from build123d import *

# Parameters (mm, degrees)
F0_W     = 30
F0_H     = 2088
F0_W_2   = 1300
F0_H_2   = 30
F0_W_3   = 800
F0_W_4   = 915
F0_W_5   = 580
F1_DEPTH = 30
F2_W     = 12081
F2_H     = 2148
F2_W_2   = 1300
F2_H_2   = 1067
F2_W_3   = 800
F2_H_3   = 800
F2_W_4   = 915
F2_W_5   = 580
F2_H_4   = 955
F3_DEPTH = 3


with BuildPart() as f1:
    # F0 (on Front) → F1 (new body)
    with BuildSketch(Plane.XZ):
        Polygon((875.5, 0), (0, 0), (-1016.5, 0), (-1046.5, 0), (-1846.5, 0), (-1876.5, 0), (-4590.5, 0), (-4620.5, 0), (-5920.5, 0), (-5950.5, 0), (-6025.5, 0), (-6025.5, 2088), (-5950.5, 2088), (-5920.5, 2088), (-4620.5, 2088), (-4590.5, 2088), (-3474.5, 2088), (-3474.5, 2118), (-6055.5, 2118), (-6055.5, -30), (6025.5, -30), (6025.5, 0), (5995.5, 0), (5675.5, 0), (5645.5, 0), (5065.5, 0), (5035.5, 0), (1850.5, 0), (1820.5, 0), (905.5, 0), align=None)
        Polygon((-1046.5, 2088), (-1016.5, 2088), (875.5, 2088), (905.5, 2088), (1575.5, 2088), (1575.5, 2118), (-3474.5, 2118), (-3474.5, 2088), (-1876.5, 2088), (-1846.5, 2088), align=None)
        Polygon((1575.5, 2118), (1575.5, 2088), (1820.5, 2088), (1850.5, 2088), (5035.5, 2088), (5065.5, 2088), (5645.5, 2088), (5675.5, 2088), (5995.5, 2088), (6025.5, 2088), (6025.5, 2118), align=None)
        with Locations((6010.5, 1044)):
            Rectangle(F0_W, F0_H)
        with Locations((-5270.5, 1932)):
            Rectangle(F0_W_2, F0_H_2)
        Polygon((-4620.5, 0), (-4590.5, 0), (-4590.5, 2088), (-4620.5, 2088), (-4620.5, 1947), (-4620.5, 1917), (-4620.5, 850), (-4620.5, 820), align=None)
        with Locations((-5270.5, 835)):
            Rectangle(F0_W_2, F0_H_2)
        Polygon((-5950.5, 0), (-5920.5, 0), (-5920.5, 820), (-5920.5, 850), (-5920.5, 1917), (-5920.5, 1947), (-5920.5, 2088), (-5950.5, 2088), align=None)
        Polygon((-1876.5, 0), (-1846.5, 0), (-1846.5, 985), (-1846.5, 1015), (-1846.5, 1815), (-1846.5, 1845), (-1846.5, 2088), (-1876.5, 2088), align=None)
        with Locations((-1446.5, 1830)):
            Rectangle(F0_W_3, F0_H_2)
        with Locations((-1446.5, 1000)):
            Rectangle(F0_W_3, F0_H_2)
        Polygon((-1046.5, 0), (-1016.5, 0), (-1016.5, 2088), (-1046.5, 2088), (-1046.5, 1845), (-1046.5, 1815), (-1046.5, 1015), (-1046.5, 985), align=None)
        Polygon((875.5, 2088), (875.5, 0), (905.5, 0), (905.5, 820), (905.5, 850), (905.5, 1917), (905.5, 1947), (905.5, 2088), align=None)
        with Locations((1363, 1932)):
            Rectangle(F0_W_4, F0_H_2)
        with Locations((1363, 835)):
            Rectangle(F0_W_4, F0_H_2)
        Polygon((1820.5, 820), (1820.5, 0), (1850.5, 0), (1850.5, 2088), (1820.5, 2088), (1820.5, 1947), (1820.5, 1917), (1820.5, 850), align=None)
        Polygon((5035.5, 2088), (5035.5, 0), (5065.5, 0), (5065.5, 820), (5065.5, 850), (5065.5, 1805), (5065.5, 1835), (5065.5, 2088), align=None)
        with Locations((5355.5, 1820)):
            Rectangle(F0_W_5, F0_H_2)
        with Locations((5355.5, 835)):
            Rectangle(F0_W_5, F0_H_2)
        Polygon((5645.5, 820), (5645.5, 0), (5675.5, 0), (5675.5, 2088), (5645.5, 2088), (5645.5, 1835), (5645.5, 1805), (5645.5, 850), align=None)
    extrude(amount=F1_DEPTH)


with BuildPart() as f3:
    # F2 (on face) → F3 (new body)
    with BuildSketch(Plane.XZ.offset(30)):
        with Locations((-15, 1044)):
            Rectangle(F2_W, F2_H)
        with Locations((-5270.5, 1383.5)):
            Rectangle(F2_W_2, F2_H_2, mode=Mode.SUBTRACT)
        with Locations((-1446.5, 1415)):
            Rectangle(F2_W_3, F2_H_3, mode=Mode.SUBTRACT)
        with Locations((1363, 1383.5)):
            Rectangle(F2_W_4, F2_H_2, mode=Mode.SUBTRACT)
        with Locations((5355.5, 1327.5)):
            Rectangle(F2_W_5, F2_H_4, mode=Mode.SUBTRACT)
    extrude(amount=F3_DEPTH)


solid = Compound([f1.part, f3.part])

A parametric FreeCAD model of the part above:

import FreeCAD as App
import Part
import Sketcher

doc = App.newDocument("Part")
body = doc.addObject("PartDesign::Body", "Body")

sketch1 = doc.addObject("Sketcher::SketchObject", "Sketch")
body.addObject(sketch1)
sketch1.AttachmentSupport = (doc.XZ_Plane, [""])
sketch1.MapMode = "FlatFace"
sketch1.addGeometry([
    Part.LineSegment(App.Vector(6026, 2118, 0), App.Vector(-6056, 2118, 0)),
    Part.LineSegment(App.Vector(-6056, 2118, 0), App.Vector(-6056, -30, 0)),
    Part.LineSegment(App.Vector(-6056, -30, 0), App.Vector(6026, -30, 0)),
    Part.LineSegment(App.Vector(6026, -30, 0), App.Vector(6026, 2118, 0)),
    Part.LineSegment(App.Vector(-6026, 0, 0), App.Vector(-6026, 2088, 0)),
    Part.LineSegment(App.Vector(-6026, 2088, 0), App.Vector(-5950, 2088, 0)),
    Part.LineSegment(App.Vector(-5950, 2088, 0), App.Vector(-5950, 0, 0)),
    Part.LineSegment(App.Vector(-5950, 0, 0), App.Vector(-6026, 0, 0)),
    Part.LineSegment(App.Vector(-5920, 2088, 0), App.Vector(-4620, 2088, 0)),
    Part.LineSegment(App.Vector(-4620, 2088, 0), App.Vector(-4620, 1947, 0)),
    Part.LineSegment(App.Vector(-4620, 1947, 0), App.Vector(-5920, 1947, 0)),
    Part.LineSegment(App.Vector(-5920, 1947, 0), App.Vector(-5920, 2088, 0)),
    Part.LineSegment(App.Vector(-5920, 1917, 0), App.Vector(-4620, 1917, 0)),
    Part.LineSegment(App.Vector(-4620, 1917, 0), App.Vector(-4620, 850, 0)),
    Part.LineSegment(App.Vector(-4620, 850, 0), App.Vector(-5920, 850, 0)),
    Part.LineSegment(App.Vector(-5920, 850, 0), App.Vector(-5920, 1917, 0)),
    Part.LineSegment(App.Vector(-5920, 820, 0), App.Vector(-4620, 820, 0)),
    Part.LineSegment(App.Vector(-4620, 820, 0), App.Vector(-4620, 0, 0)),
    Part.LineSegment(App.Vector(-4620, 0, 0), App.Vector(-5920, 0, 0)),
    Part.LineSegment(App.Vector(-5920, 0, 0), App.Vector(-5920, 820, 0)),
    Part.LineSegment(App.Vector(-4590, 2088, 0), App.Vector(-1876, 2088, 0)),
    Part.LineSegment(App.Vector(-1876, 2088, 0), App.Vector(-1876, 0, 0)),
    Part.LineSegment(App.Vector(-1876, 0, 0), App.Vector(-4590, 0, 0)),
    Part.LineSegment(App.Vector(-4590, 0, 0), App.Vector(-4590, 2088, 0)),
    Part.LineSegment(App.Vector(-1846, 2088, 0), App.Vector(-1046, 2088, 0)),
    Part.LineSegment(App.Vector(-1046, 2088, 0), App.Vector(-1046, 1845, 0)),
    Part.LineSegment(App.Vector(-1046, 1845, 0), App.Vector(-1846, 1845, 0)),
    Part.LineSegment(App.Vector(-1846, 1845, 0), App.Vector(-1846, 2088, 0)),
    Part.LineSegment(App.Vector(-1016, 2088, 0), App.Vector(876, 2088, 0)),
    Part.LineSegment(App.Vector(876, 2088, 0), App.Vector(876, 0, 0)),
    Part.LineSegment(App.Vector(876, 0, 0), App.Vector(-1016, 0, 0)),
    Part.LineSegment(App.Vector(-1016, 0, 0), App.Vector(-1016, 2088, 0)),
    Part.LineSegment(App.Vector(906, 2088, 0), App.Vector(1820, 2088, 0)),
    Part.LineSegment(App.Vector(1820, 2088, 0), App.Vector(1820, 1947, 0)),
    Part.LineSegment(App.Vector(1820, 1947, 0), App.Vector(906, 1947, 0)),
    Part.LineSegment(App.Vector(906, 1947, 0), App.Vector(906, 2088, 0)),
    Part.LineSegment(App.Vector(1850, 2088, 0), App.Vector(5036, 2088, 0)),
    Part.LineSegment(App.Vector(5036, 2088, 0), App.Vector(5036, 0, 0)),
    Part.LineSegment(App.Vector(5036, 0, 0), App.Vector(1850, 0, 0)),
    Part.LineSegment(App.Vector(1850, 0, 0), App.Vector(1850, 2088, 0)),
    Part.LineSegment(App.Vector(5066, 2088, 0), App.Vector(5646, 2088, 0)),
    Part.LineSegment(App.Vector(5646, 2088, 0), App.Vector(5646, 1835, 0)),
    Part.LineSegment(App.Vector(5646, 1835, 0), App.Vector(5066, 1835, 0)),
    Part.LineSegment(App.Vector(5066, 1835, 0), App.Vector(5066, 2088, 0)),
    Part.LineSegment(App.Vector(5676, 2088, 0), App.Vector(5996, 2088, 0)),
    Part.LineSegment(App.Vector(5996, 2088, 0), App.Vector(5996, 0, 0)),
    Part.LineSegment(App.Vector(5996, 0, 0), App.Vector(5676, 0, 0)),
    Part.LineSegment(App.Vector(5676, 0, 0), App.Vector(5676, 2088, 0)),
    Part.LineSegment(App.Vector(5646, 0, 0), App.Vector(5066, 0, 0)),
    Part.LineSegment(App.Vector(5066, 0, 0), App.Vector(5066, 820, 0)),
    Part.LineSegment(App.Vector(5066, 820, 0), App.Vector(5646, 820, 0)),
    Part.LineSegment(App.Vector(5646, 820, 0), App.Vector(5646, 0, 0)),
    Part.LineSegment(App.Vector(5646, 850, 0), App.Vector(5066, 850, 0)),
    Part.LineSegment(App.Vector(5066, 850, 0), App.Vector(5066, 1805, 0)),
    Part.LineSegment(App.Vector(5066, 1805, 0), App.Vector(5646, 1805, 0)),
    Part.LineSegment(App.Vector(5646, 1805, 0), App.Vector(5646, 850, 0)),
    Part.LineSegment(App.Vector(1820, 0, 0), App.Vector(906, 0, 0)),
    Part.LineSegment(App.Vector(906, 0, 0), App.Vector(906, 820, 0)),
    Part.LineSegment(App.Vector(906, 820, 0), App.Vector(1820, 820, 0)),
    Part.LineSegment(App.Vector(1820, 820, 0), App.Vector(1820, 0, 0)),
    Part.LineSegment(App.Vector(1820, 850, 0), App.Vector(906, 850, 0)),
    Part.LineSegment(App.Vector(906, 850, 0), App.Vector(906, 1917, 0)),
    Part.LineSegment(App.Vector(906, 1917, 0), App.Vector(1820, 1917, 0)),
    Part.LineSegment(App.Vector(1820, 1917, 0), App.Vector(1820, 850, 0)),
    Part.LineSegment(App.Vector(-1046, 0, 0), App.Vector(-1846, 0, 0)),
    Part.LineSegment(App.Vector(-1846, 0, 0), App.Vector(-1846, 985, 0)),
    Part.LineSegment(App.Vector(-1846, 985, 0), App.Vector(-1046, 985, 0)),
    Part.LineSegment(App.Vector(-1046, 985, 0), App.Vector(-1046, 0, 0)),
    Part.LineSegment(App.Vector(-1046, 1015, 0), App.Vector(-1846, 1015, 0)),
    Part.LineSegment(App.Vector(-1846, 1015, 0), App.Vector(-1846, 1815, 0)),
    Part.LineSegment(App.Vector(-1846, 1815, 0), App.Vector(-1046, 1815, 0)),
    Part.LineSegment(App.Vector(-1046, 1815, 0), App.Vector(-1046, 1015, 0)),
], False)
sketch1.addConstraint([
    Sketcher.Constraint("Coincident", 0, 2, 1, 1),
    Sketcher.Constraint("Coincident", 1, 2, 2, 1),
    Sketcher.Constraint("Coincident", 2, 2, 3, 1),
    Sketcher.Constraint("Coincident", 3, 2, 0, 1),
    Sketcher.Constraint("Coincident", 4, 2, 5, 1),
    Sketcher.Constraint("Coincident", 5, 2, 6, 1),
    Sketcher.Constraint("Coincident", 6, 2, 7, 1),
    Sketcher.Constraint("Coincident", 7, 2, 4, 1),
    Sketcher.Constraint("Coincident", 8, 2, 9, 1),
    Sketcher.Constraint("Coincident", 9, 2, 10, 1),
    Sketcher.Constraint("Coincident", 10, 2, 11, 1),
    Sketcher.Constraint("Coincident", 11, 2, 8, 1),
    Sketcher.Constraint("Coincident", 12, 2, 13, 1),
    Sketcher.Constraint("Coincident", 13, 2, 14, 1),
    Sketcher.Constraint("Coincident", 14, 2, 15, 1),
    Sketcher.Constraint("Coincident", 15, 2, 12, 1),
    Sketcher.Constraint("Coincident", 16, 2, 17, 1),
    Sketcher.Constraint("Coincident", 17, 2, 18, 1),
    Sketcher.Constraint("Coincident", 18, 2, 19, 1),
    Sketcher.Constraint("Coincident", 19, 2, 16, 1),
    Sketcher.Constraint("Coincident", 20, 2, 21, 1),
    Sketcher.Constraint("Coincident", 21, 2, 22, 1),
    Sketcher.Constraint("Coincident", 22, 2, 23, 1),
    Sketcher.Constraint("Coincident", 23, 2, 20, 1),
    Sketcher.Constraint("Coincident", 24, 2, 25, 1),
    Sketcher.Constraint("Coincident", 25, 2, 26, 1),
    Sketcher.Constraint("Coincident", 26, 2, 27, 1),
    Sketcher.Constraint("Coincident", 27, 2, 24, 1),
    Sketcher.Constraint("Coincident", 28, 2, 29, 1),
    Sketcher.Constraint("Coincident", 29, 2, 30, 1),
    Sketcher.Constraint("Coincident", 30, 2, 31, 1),
    Sketcher.Constraint("Coincident", 31, 2, 28, 1),
    Sketcher.Constraint("Coincident", 32, 2, 33, 1),
    Sketcher.Constraint("Coincident", 33, 2, 34, 1),
    Sketcher.Constraint("Coincident", 34, 2, 35, 1),
    Sketcher.Constraint("Coincident", 35, 2, 32, 1),
    Sketcher.Constraint("Coincident", 36, 2, 37, 1),
    Sketcher.Constraint("Coincident", 37, 2, 38, 1),
    Sketcher.Constraint("Coincident", 38, 2, 39, 1),
    Sketcher.Constraint("Coincident", 39, 2, 36, 1),
    Sketcher.Constraint("Coincident", 40, 2, 41, 1),
    Sketcher.Constraint("Coincident", 41, 2, 42, 1),
    Sketcher.Constraint("Coincident", 42, 2, 43, 1),
    Sketcher.Constraint("Coincident", 43, 2, 40, 1),
    Sketcher.Constraint("Coincident", 44, 2, 45, 1),
    Sketcher.Constraint("Coincident", 45, 2, 46, 1),
    Sketcher.Constraint("Coincident", 46, 2, 47, 1),
    Sketcher.Constraint("Coincident", 47, 2, 44, 1),
    Sketcher.Constraint("Coincident", 48, 2, 49, 1),
    Sketcher.Constraint("Coincident", 49, 2, 50, 1),
    Sketcher.Constraint("Coincident", 50, 2, 51, 1),
    Sketcher.Constraint("Coincident", 51, 2, 48, 1),
    Sketcher.Constraint("Coincident", 52, 2, 53, 1),
    Sketcher.Constraint("Coincident", 53, 2, 54, 1),
    Sketcher.Constraint("Coincident", 54, 2, 55, 1),
    Sketcher.Constraint("Coincident", 55, 2, 52, 1),
    Sketcher.Constraint("Coincident", 56, 2, 57, 1),
    Sketcher.Constraint("Coincident", 57, 2, 58, 1),
    Sketcher.Constraint("Coincident", 58, 2, 59, 1),
    Sketcher.Constraint("Coincident", 59, 2, 56, 1),
    Sketcher.Constraint("Coincident", 60, 2, 61, 1),
    Sketcher.Constraint("Coincident", 61, 2, 62, 1),
    Sketcher.Constraint("Coincident", 62, 2, 63, 1),
    Sketcher.Constraint("Coincident", 63, 2, 60, 1),
    Sketcher.Constraint("Coincident", 64, 2, 65, 1),
    Sketcher.Constraint("Coincident", 65, 2, 66, 1),
    Sketcher.Constraint("Coincident", 66, 2, 67, 1),
    Sketcher.Constraint("Coincident", 67, 2, 64, 1),
    Sketcher.Constraint("Coincident", 68, 2, 69, 1),
    Sketcher.Constraint("Coincident", 69, 2, 70, 1),
    Sketcher.Constraint("Coincident", 70, 2, 71, 1),
    Sketcher.Constraint("Coincident", 71, 2, 68, 1),
    Sketcher.Constraint("Horizontal", 0),
    Sketcher.Constraint("Vertical", 1),
    Sketcher.Constraint("Horizontal", 2),
    Sketcher.Constraint("Vertical", 3),
    Sketcher.Constraint("Vertical", 4),
    Sketcher.Constraint("Horizontal", 5),
    Sketcher.Constraint("Vertical", 6),
    Sketcher.Constraint("Horizontal", 7),
    Sketcher.Constraint("Horizontal", 8),
    Sketcher.Constraint("Vertical", 9),
    Sketcher.Constraint("Horizontal", 10),
    Sketcher.Constraint("Vertical", 11),
    Sketcher.Constraint("Horizontal", 12),
    Sketcher.Constraint("Vertical", 13),
    Sketcher.Constraint("Horizontal", 14),
    Sketcher.Constraint("Vertical", 15),
    Sketcher.Constraint("Horizontal", 16),
    Sketcher.Constraint("Vertical", 17),
    Sketcher.Constraint("Horizontal", 18),
    Sketcher.Constraint("Vertical", 19),
    Sketcher.Constraint("Horizontal", 20),
    Sketcher.Constraint("Vertical", 21),
    Sketcher.Constraint("Horizontal", 22),
    Sketcher.Constraint("Vertical", 23),
    Sketcher.Constraint("Horizontal", 24),
    Sketcher.Constraint("Vertical", 25),
    Sketcher.Constraint("Horizontal", 26),
    Sketcher.Constraint("Vertical", 27),
    Sketcher.Constraint("Horizontal", 28),
    Sketcher.Constraint("Vertical", 29),
    Sketcher.Constraint("Horizontal", 30),
    Sketcher.Constraint("Vertical", 31),
    Sketcher.Constraint("Horizontal", 32),
    Sketcher.Constraint("Vertical", 33),
    Sketcher.Constraint("Horizontal", 34),
    Sketcher.Constraint("Vertical", 35),
    Sketcher.Constraint("Horizontal", 36),
    Sketcher.Constraint("Vertical", 37),
    Sketcher.Constraint("Horizontal", 38),
    Sketcher.Constraint("Vertical", 39),
    Sketcher.Constraint("Horizontal", 40),
    Sketcher.Constraint("Vertical", 41),
    Sketcher.Constraint("Horizontal", 42),
    Sketcher.Constraint("Vertical", 43),
    Sketcher.Constraint("Horizontal", 44),
    Sketcher.Constraint("Vertical", 45),
    Sketcher.Constraint("Horizontal", 46),
    Sketcher.Constraint("Vertical", 47),
    Sketcher.Constraint("Horizontal", 48),
    Sketcher.Constraint("Vertical", 49),
    Sketcher.Constraint("Horizontal", 50),
    Sketcher.Constraint("Vertical", 51),
    Sketcher.Constraint("Horizontal", 52),
    Sketcher.Constraint("Vertical", 53),
    Sketcher.Constraint("Horizontal", 54),
    Sketcher.Constraint("Vertical", 55),
    Sketcher.Constraint("Horizontal", 56),
    Sketcher.Constraint("Vertical", 57),
    Sketcher.Constraint("Horizontal", 58),
    Sketcher.Constraint("Vertical", 59),
    Sketcher.Constraint("Horizontal", 60),
    Sketcher.Constraint("Vertical", 61),
    Sketcher.Constraint("Horizontal", 62),
    Sketcher.Constraint("Vertical", 63),
    Sketcher.Constraint("Horizontal", 64),
    Sketcher.Constraint("Vertical", 65),
    Sketcher.Constraint("Horizontal", 66),
    Sketcher.Constraint("Vertical", 67),
    Sketcher.Constraint("Horizontal", 68),
    Sketcher.Constraint("Vertical", 69),
    Sketcher.Constraint("Horizontal", 70),
    Sketcher.Constraint("Vertical", 71),
    Sketcher.Constraint("PointOnObject", 6, 2, -1),
    Sketcher.Constraint("PointOnObject", 17, 2, -1),
    Sketcher.Constraint("PointOnObject", 21, 2, -1),
    Sketcher.Constraint("PointOnObject", 29, 2, -1),
    Sketcher.Constraint("PointOnObject", 37, 2, -1),
    Sketcher.Constraint("PointOnObject", 45, 2, -1),
    Sketcher.Constraint("PointOnObject", 48, 2, -1),
    Sketcher.Constraint("PointOnObject", 56, 2, -1),
    Sketcher.Constraint("PointOnObject", 64, 2, -1),
    Sketcher.Constraint("Horizontal", 5, 2, 8, 2),
    Sketcher.Constraint("Horizontal", 11, 2, 20, 2),
    Sketcher.Constraint("Horizontal", 23, 2, 24, 2),
    Sketcher.Constraint("Horizontal", 27, 2, 28, 2),
    Sketcher.Constraint("Horizontal", 31, 2, 32, 2),
    Sketcher.Constraint("Horizontal", 10, 2, 33, 2),
    Sketcher.Constraint("Horizontal", 35, 2, 36, 2),
    Sketcher.Constraint("Horizontal", 39, 2, 40, 2),
    Sketcher.Constraint("Horizontal", 43, 2, 44, 2),
    Sketcher.Constraint("Horizontal", 19, 2, 49, 2),
    Sketcher.Constraint("Horizontal", 14, 2, 52, 2),
    Sketcher.Constraint("Horizontal", 50, 2, 57, 2),
    Sketcher.Constraint("Horizontal", 55, 2, 60, 2),
    Sketcher.Constraint("Horizontal", 15, 2, 61, 2),
    Sketcher.Constraint("Vertical", 9, 2, 12, 2),
    Sketcher.Constraint("Vertical", 11, 2, 14, 2),
    Sketcher.Constraint("Vertical", 13, 2, 16, 2),
    Sketcher.Constraint("Vertical", 15, 2, 18, 2),
    Sketcher.Constraint("Vertical", 43, 2, 48, 2),
    Sketcher.Constraint("Vertical", 41, 2, 50, 2),
    Sketcher.Constraint("Vertical", 49, 2, 52, 2),
    Sketcher.Constraint("Vertical", 51, 2, 54, 2),
    Sketcher.Constraint("Vertical", 35, 2, 56, 2),
    Sketcher.Constraint("Vertical", 33, 2, 58, 2),
    Sketcher.Constraint("Vertical", 57, 2, 60, 2),
    Sketcher.Constraint("Vertical", 59, 2, 62, 2),
    Sketcher.Constraint("Vertical", 27, 2, 64, 2),
    Sketcher.Constraint("Vertical", 25, 2, 66, 2),
    Sketcher.Constraint("Vertical", 65, 2, 68, 2),
    Sketcher.Constraint("Vertical", 67, 2, 70, 2),
    Sketcher.Constraint("Equal", 70, 69),
    Sketcher.Constraint("DistanceX", 0, 2, 0, 1, 12081.0),
    Sketcher.Constraint("DistanceX", 5, 1, 5, 2, 75.0),
    Sketcher.Constraint("DistanceX", 8, 1, 8, 2, 1300.0),
    Sketcher.Constraint("DistanceX", 20, 1, 20, 2, 2714.0),
    Sketcher.Constraint("DistanceX", 24, 1, 24, 2, 800.0),
    Sketcher.Constraint("DistanceX", 28, 1, 28, 2, 1892.0),
    Sketcher.Constraint("DistanceX", 32, 1, 32, 2, 915.0),
    Sketcher.Constraint("DistanceX", 36, 1, 36, 2, 3185.0),
    Sketcher.Constraint("DistanceX", 40, 1, 40, 2, 580.0),
    Sketcher.Constraint("DistanceX", 44, 1, 44, 2, 320.0),
    Sketcher.Constraint("DistanceY", 1, 2, 1, 1, 2148.0),
    Sketcher.Constraint("DistanceY", 4, 1, 4, 2, 2088.0),
    Sketcher.Constraint("DistanceY", 9, 2, 9, 1, 141.0),
    Sketcher.Constraint("DistanceY", 13, 2, 13, 1, 1067.0),
    Sketcher.Constraint("DistanceY", 17, 2, 17, 1, 820.0),
    Sketcher.Constraint("DistanceY", 25, 2, 25, 1, 243.0),
    Sketcher.Constraint("DistanceY", 41, 2, 41, 1, 253.0),
    Sketcher.Constraint("DistanceY", 53, 1, 53, 2, 955.0),
    Sketcher.Constraint("DistanceY", 65, 1, 65, 2, 985.0),
    Sketcher.Constraint("DistanceY", -1, 1, 0, 2, 2118.0),
    Sketcher.Constraint("DistanceY", -1, 1, 12, 2, 1917.0),
    Sketcher.Constraint("DistanceY", -1, 1, 68, 2, 1015.0),
    Sketcher.Constraint("DistanceX", 0, 2, -1, 1, 6055.5),
    Sketcher.Constraint("DistanceX", 4, 2, -1, 1, 6025.5),
    Sketcher.Constraint("DistanceX", 8, 2, -1, 1, 4620.5),
    Sketcher.Constraint("DistanceX", 20, 2, -1, 1, 1876.5),
    Sketcher.Constraint("DistanceX", 24, 2, -1, 1, 1046.5),
    Sketcher.Constraint("DistanceX", -1, 1, 28, 2, 875.5),
    Sketcher.Constraint("DistanceX", -1, 1, 32, 2, 1820.5),
    Sketcher.Constraint("DistanceX", -1, 1, 36, 2, 5035.5),
    Sketcher.Constraint("DistanceX", -1, 1, 40, 2, 5645.5),
    Sketcher.Constraint("DistanceX", -1, 1, 44, 2, 5995.5),
])
pad1 = doc.addObject("PartDesign::Pad", "Pad")
body.addObject(pad1)
pad1.Profile = sketch1
pad1.Length = 30
body2 = doc.addObject("PartDesign::Body", "Body001")

sketch2 = doc.addObject("Sketcher::SketchObject", "Sketch001")
body2.addObject(sketch2)
sketch2.AttachmentSupport = (doc.getObject("XZ_Plane001"), [""])
sketch2.MapMode = "FlatFace"
sketch2.AttachmentOffset = App.Placement(App.Vector(0, 0, 30), App.Rotation())
sketch2.addGeometry([
    Part.LineSegment(App.Vector(-6056, 2118, 0), App.Vector(-6056, -30, 0)),
    Part.LineSegment(App.Vector(-6056, -30, 0), App.Vector(6026, -30, 0)),
    Part.LineSegment(App.Vector(6026, -30, 0), App.Vector(6026, 2118, 0)),
    Part.LineSegment(App.Vector(6026, 2118, 0), App.Vector(-6056, 2118, 0)),
    Part.LineSegment(App.Vector(5646, 850, 0), App.Vector(5066, 850, 0)),
    Part.LineSegment(App.Vector(5066, 850, 0), App.Vector(5066, 1805, 0)),
    Part.LineSegment(App.Vector(5066, 1805, 0), App.Vector(5646, 1805, 0)),
    Part.LineSegment(App.Vector(5646, 1805, 0), App.Vector(5646, 850, 0)),
    Part.LineSegment(App.Vector(-4620, 850, 0), App.Vector(-5920, 850, 0)),
    Part.LineSegment(App.Vector(-5920, 850, 0), App.Vector(-5920, 1917, 0)),
    Part.LineSegment(App.Vector(-5920, 1917, 0), App.Vector(-4620, 1917, 0)),
    Part.LineSegment(App.Vector(-4620, 1917, 0), App.Vector(-4620, 850, 0)),
    Part.LineSegment(App.Vector(-1046, 1015, 0), App.Vector(-1846, 1015, 0)),
    Part.LineSegment(App.Vector(-1846, 1015, 0), App.Vector(-1846, 1815, 0)),
    Part.LineSegment(App.Vector(-1846, 1815, 0), App.Vector(-1046, 1815, 0)),
    Part.LineSegment(App.Vector(-1046, 1815, 0), App.Vector(-1046, 1015, 0)),
    Part.LineSegment(App.Vector(1820, 850, 0), App.Vector(906, 850, 0)),
    Part.LineSegment(App.Vector(906, 850, 0), App.Vector(906, 1917, 0)),
    Part.LineSegment(App.Vector(906, 1917, 0), App.Vector(1820, 1917, 0)),
    Part.LineSegment(App.Vector(1820, 1917, 0), App.Vector(1820, 850, 0)),
], False)
sketch2.addConstraint([
    Sketcher.Constraint("Coincident", 0, 2, 1, 1),
    Sketcher.Constraint("Coincident", 1, 2, 2, 1),
    Sketcher.Constraint("Coincident", 2, 2, 3, 1),
    Sketcher.Constraint("Coincident", 3, 2, 0, 1),
    Sketcher.Constraint("Coincident", 4, 2, 5, 1),
    Sketcher.Constraint("Coincident", 5, 2, 6, 1),
    Sketcher.Constraint("Coincident", 6, 2, 7, 1),
    Sketcher.Constraint("Coincident", 7, 2, 4, 1),
    Sketcher.Constraint("Coincident", 8, 2, 9, 1),
    Sketcher.Constraint("Coincident", 9, 2, 10, 1),
    Sketcher.Constraint("Coincident", 10, 2, 11, 1),
    Sketcher.Constraint("Coincident", 11, 2, 8, 1),
    Sketcher.Constraint("Coincident", 12, 2, 13, 1),
    Sketcher.Constraint("Coincident", 13, 2, 14, 1),
    Sketcher.Constraint("Coincident", 14, 2, 15, 1),
    Sketcher.Constraint("Coincident", 15, 2, 12, 1),
    Sketcher.Constraint("Coincident", 16, 2, 17, 1),
    Sketcher.Constraint("Coincident", 17, 2, 18, 1),
    Sketcher.Constraint("Coincident", 18, 2, 19, 1),
    Sketcher.Constraint("Coincident", 19, 2, 16, 1),
    Sketcher.Constraint("Vertical", 0),
    Sketcher.Constraint("Horizontal", 1),
    Sketcher.Constraint("Vertical", 2),
    Sketcher.Constraint("Horizontal", 3),
    Sketcher.Constraint("Horizontal", 4),
    Sketcher.Constraint("Vertical", 5),
    Sketcher.Constraint("Horizontal", 6),
    Sketcher.Constraint("Vertical", 7),
    Sketcher.Constraint("Horizontal", 8),
    Sketcher.Constraint("Vertical", 9),
    Sketcher.Constraint("Horizontal", 10),
    Sketcher.Constraint("Vertical", 11),
    Sketcher.Constraint("Horizontal", 12),
    Sketcher.Constraint("Vertical", 13),
    Sketcher.Constraint("Horizontal", 14),
    Sketcher.Constraint("Vertical", 15),
    Sketcher.Constraint("Horizontal", 16),
    Sketcher.Constraint("Vertical", 17),
    Sketcher.Constraint("Horizontal", 18),
    Sketcher.Constraint("Vertical", 19),
    Sketcher.Constraint("Horizontal", 7, 2, 8, 2),
    Sketcher.Constraint("Horizontal", 11, 2, 16, 2),
    Sketcher.Constraint("Horizontal", 10, 2, 17, 2),
    Sketcher.Constraint("Equal", 14, 13),
    Sketcher.Constraint("DistanceX", 1, 1, 1, 2, 12081.0),
    Sketcher.Constraint("DistanceX", 4, 2, 4, 1, 580.0),
    Sketcher.Constraint("DistanceX", 8, 2, 8, 1, 1300.0),
    Sketcher.Constraint("DistanceX", 12, 2, 12, 1, 800.0),
    Sketcher.Constraint("DistanceX", 16, 2, 16, 1, 915.0),
    Sketcher.Constraint("DistanceY", 0, 2, 0, 1, 2148.0),
    Sketcher.Constraint("DistanceY", 5, 1, 5, 2, 955.0),
    Sketcher.Constraint("DistanceY", 9, 1, 9, 2, 1067.0),
    Sketcher.Constraint("DistanceY", 0, 2, -1, 1, 30.0),
    Sketcher.Constraint("DistanceY", -1, 1, 4, 2, 850.0),
    Sketcher.Constraint("DistanceY", -1, 1, 12, 2, 1015.0),
    Sketcher.Constraint("DistanceX", 4, 2, 1, 2, 960.0),
    Sketcher.Constraint("DistanceX", 0, 2, 8, 2, 135.0),
    Sketcher.Constraint("DistanceX", 11, 2, 12, 2, 2774.0),
    Sketcher.Constraint("DistanceX", 15, 2, 16, 2, 1952.0),
    Sketcher.Constraint("DistanceX", 0, 2, -1, 1, 6055.5),
])
pad2 = doc.addObject("PartDesign::Pad", "Pad001")
body2.addObject(pad2)
pad2.Profile = sketch2
pad2.Length = 3

doc.recompute()
